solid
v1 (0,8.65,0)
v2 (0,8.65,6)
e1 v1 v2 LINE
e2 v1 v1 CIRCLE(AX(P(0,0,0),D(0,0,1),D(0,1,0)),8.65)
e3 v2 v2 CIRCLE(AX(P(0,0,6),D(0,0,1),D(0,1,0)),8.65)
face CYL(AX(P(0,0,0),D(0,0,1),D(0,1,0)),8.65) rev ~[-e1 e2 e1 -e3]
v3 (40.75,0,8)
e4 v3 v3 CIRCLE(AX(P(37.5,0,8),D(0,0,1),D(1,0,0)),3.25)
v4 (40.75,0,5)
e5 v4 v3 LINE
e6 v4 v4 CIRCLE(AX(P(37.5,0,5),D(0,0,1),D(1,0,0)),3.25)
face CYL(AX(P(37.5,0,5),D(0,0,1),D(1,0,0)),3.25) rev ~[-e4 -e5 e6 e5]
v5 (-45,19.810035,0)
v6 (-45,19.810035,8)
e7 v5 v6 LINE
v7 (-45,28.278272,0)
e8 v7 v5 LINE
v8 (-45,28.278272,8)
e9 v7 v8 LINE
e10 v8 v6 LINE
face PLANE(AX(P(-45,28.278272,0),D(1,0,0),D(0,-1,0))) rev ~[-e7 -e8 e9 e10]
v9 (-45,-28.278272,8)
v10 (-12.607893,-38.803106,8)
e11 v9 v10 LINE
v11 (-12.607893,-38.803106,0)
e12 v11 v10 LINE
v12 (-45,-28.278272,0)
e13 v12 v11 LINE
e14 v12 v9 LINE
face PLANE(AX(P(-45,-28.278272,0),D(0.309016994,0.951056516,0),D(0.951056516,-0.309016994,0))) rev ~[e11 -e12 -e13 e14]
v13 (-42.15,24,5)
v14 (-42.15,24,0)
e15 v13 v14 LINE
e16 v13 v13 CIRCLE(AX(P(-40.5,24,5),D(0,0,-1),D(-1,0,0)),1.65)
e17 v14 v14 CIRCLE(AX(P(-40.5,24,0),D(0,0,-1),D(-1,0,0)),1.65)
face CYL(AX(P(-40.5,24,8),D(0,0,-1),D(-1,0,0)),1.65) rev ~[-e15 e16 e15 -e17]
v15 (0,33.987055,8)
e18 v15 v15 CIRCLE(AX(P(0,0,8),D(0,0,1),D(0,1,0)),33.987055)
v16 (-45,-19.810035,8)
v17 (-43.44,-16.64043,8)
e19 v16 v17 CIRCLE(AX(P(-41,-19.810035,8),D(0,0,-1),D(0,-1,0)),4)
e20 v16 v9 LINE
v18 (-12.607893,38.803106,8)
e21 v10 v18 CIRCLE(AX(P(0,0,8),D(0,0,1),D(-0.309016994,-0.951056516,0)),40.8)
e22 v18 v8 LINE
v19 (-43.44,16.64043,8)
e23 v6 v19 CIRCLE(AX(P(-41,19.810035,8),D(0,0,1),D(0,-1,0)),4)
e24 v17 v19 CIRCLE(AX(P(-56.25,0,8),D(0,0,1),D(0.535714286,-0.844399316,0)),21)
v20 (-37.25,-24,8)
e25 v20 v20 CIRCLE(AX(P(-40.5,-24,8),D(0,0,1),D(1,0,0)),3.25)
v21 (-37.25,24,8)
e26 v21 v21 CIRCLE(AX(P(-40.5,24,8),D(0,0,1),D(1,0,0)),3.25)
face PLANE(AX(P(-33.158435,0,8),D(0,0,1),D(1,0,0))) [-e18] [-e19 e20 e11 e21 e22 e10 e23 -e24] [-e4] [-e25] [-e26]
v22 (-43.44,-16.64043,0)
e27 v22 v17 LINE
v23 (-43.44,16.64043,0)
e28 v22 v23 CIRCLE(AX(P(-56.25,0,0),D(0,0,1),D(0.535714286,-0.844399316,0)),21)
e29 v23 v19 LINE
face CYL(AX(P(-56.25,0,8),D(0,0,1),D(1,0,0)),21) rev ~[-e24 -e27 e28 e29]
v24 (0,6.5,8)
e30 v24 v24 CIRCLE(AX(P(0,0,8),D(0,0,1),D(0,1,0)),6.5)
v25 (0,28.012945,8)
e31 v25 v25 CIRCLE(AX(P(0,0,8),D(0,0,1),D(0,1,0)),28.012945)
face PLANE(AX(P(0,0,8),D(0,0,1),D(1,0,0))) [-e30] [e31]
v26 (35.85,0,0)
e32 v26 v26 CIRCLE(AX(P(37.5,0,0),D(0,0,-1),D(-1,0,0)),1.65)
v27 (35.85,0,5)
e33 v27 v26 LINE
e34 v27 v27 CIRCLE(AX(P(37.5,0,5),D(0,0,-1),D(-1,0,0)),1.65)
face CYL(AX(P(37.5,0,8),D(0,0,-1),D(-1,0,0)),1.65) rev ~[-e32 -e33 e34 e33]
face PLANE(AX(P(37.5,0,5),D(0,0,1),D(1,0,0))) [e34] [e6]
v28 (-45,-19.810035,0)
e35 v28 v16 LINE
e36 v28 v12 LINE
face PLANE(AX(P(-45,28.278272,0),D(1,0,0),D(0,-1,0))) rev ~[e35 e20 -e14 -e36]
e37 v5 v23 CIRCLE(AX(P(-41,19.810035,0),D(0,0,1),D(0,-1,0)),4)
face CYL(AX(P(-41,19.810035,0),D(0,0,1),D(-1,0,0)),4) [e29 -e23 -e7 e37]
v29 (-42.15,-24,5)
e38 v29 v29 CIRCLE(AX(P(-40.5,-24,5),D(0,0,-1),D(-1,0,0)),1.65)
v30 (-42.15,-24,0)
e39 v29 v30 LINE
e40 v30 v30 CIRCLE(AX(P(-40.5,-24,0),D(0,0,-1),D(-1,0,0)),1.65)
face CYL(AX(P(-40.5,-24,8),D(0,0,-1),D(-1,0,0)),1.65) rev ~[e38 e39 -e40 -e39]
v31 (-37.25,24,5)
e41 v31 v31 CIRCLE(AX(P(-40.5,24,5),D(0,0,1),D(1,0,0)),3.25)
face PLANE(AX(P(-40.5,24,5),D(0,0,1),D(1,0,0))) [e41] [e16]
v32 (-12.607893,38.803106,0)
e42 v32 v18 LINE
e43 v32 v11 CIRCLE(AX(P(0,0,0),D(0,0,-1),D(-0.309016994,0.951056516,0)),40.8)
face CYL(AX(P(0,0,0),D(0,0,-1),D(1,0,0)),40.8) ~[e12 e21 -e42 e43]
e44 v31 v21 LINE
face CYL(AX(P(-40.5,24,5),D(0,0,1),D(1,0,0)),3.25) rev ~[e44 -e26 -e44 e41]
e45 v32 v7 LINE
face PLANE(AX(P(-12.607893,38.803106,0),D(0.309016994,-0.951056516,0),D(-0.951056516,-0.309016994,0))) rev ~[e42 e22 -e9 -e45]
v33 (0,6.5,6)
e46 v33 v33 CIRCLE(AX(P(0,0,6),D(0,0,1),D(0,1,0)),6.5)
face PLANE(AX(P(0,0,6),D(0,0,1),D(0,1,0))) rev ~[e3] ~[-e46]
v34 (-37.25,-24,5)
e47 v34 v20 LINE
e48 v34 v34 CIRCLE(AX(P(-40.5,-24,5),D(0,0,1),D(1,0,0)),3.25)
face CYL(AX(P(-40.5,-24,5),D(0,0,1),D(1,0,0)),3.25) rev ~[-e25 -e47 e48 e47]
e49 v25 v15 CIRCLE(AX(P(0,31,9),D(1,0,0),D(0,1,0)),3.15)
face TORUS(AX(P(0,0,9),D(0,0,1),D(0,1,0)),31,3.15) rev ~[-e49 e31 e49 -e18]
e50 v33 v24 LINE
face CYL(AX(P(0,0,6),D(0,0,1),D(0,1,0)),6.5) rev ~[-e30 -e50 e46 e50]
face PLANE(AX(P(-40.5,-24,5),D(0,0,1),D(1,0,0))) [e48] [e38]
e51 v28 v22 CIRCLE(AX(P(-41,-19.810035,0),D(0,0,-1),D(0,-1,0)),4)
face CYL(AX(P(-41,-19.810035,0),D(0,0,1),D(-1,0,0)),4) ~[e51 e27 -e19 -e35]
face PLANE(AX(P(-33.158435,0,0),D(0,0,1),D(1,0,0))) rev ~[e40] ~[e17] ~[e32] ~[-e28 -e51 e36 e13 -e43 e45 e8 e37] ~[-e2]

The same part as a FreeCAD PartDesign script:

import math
import FreeCAD as App
import Part
import Sketcher
Q = App.Units.Quantity


def edges_at(feature, points):
    """Names of the edges that pass closest to the given points."""
    edges = feature.Shape.Edges
    near = lambda p: min(range(len(edges)), key=lambda i: edges[i].distToShape(Part.Vertex(*p))[0])
    return sorted({f"Edge{near(p) + 1}" for p in points})

doc = App.newDocument("Part")
body = doc.addObject("PartDesign::Body", "Body")

sketch1 = body.newObject("Sketcher::SketchObject", "Sketch")
sketch1.AttachmentSupport = (doc.getObject("XY_Plane"), [""])
sketch1.MapMode = "FlatFace"
sketch1.addGeometry(Part.Circle(App.Vector(0, 0, 0), App.Vector(0, 0, 1), 40.8), False)
sketch1.addConstraint([
    Sketcher.Constraint("Coincident", 0, 3, -1, 1),
    Sketcher.Constraint("Diameter", 0, Q("81.6 mm")),
])
pad1 = body.newObject("PartDesign::Pad", "Pad")
pad1.Profile = sketch1
pad1.Length = 8

sketch2 = body.newObject("Sketcher::SketchObject", "Sketch001")
sketch2.AttachmentSupport = (doc.getObject("YZ_Plane"), [""])
sketch2.MapMode = "FlatFace"
sketch2.addGeometry([
    Part.LineSegment(App.Vector(0, 8, 0), App.Vector(0, 0, 0)),
    Part.LineSegment(App.Vector(0, 0, 0), App.Vector(8.65, 0, 0)),
    Part.LineSegment(App.Vector(8.65, 0, 0), App.Vector(8.65, 6, 0)),
    Part.LineSegment(App.Vector(8.65, 6, 0), App.Vector(6.5, 6, 0)),
    Part.LineSegment(App.Vector(6.5, 6, 0), App.Vector(6.5, 8, 0)),
    Part.LineSegment(App.Vector(6.5, 8, 0), App.Vector(0, 8, 0)),
], False)
sketch2.addConstraint([
    Sketcher.Constraint("Coincident", 0, 2, 1, 1),
    Sketcher.Constraint("Coincident", 1, 2, 2, 1),
    Sketcher.Constraint("Coincident", 2, 2, 3, 1),
    Sketcher.Constraint("Coincident", 3, 2, 4, 1),
    Sketcher.Constraint("Coincident", 4, 2, 5, 1),
    Sketcher.Constraint("Coincident", 5, 2, 0, 1),
    Sketcher.Constraint("Vertical", 0),
    Sketcher.Constraint("Horizontal", 1),
    Sketcher.Constraint("Vertical", 2),
    Sketcher.Constraint("Horizontal", 3),
    Sketcher.Constraint("Vertical", 4),
    Sketcher.Constraint("Horizontal", 5),
    Sketcher.Constraint("Coincident", 0, 2, -1, 1),
    Sketcher.Constraint("DistanceY", 0, 2, 0, 1, Q("8 mm")),
    Sketcher.Constraint("DistanceY", 2, 1, 2, 2, Q("6 mm")),
    Sketcher.Constraint("DistanceX", 5, 2, 5, 1, Q("6.5 mm")),
    Sketcher.Constraint("DistanceX", 1, 1, 1, 2, Q("8.65 mm")),
])
groove = body.newObject("PartDesign::Groove", "Groove")
groove.Profile = sketch2
groove.ReferenceAxis = (sketch2, ["V_Axis"])
groove.Angle = 360

sketch3 = body.newObject("Sketcher::SketchObject", "Sketch002")
sketch3.AttachmentSupport = (doc.getObject("YZ_Plane"), [""])
sketch3.MapMode = "FlatFace"
sketch3.addGeometry(Part.Circle(App.Vector(31, 9, 0), App.Vector(0, 0, 1), 3.15), False)
sketch3.addConstraint([
    Sketcher.Constraint("Diameter", 0, Q("6.3 mm")),
    Sketcher.Constraint("DistanceX", -1, 1, 0, 3, Q("31 mm")),
    Sketcher.Constraint("DistanceY", -1, 1, 0, 3, Q("9 mm")),
])
groove2 = body.newObject("PartDesign::Groove", "Groove001")
groove2.Profile = sketch3
groove2.ReferenceAxis = (sketch3, ["V_Axis"])
groove2.Angle = 360

sketch4 = body.newObject("Sketcher::SketchObject", "Sketch003")
sketch4.AttachmentSupport = (doc.getObject("XY_Plane"), [""])
sketch4.MapMode = "FlatFace"
sketch4.addGeometry([
    Part.LineSegment(App.Vector(-45, 28.278272, 0), App.Vector(-45, -28.278272, 0)),
    Part.LineSegment(App.Vector(-45, -28.278272, 0), App.Vector(-12.607893, -38.803106, 0)),
    Part.ArcOfCircle(Part.Circle(App.Vector(0, 0, 0), App.Vector(0, 0, 1), 40.8), math.radians(-151.927513), math.radians(-108)),
    Part.LineSegment(App.Vector(-36, -19.2, 0), App.Vector(-36, 19.2, 0)),
    Part.ArcOfCircle(Part.Circle(App.Vector(0, 0, 0), App.Vector(0, 0, 1), 40.8), math.radians(108), math.radians(151.927513)),
    Part.LineSegment(App.Vector(-12.607893, 38.803106, 0), App.Vector(-45, 28.278272, 0)),
], False)
sketch4.addConstraint([
    Sketcher.Constraint("Coincident", 0, 2, 1, 1),
    Sketcher.Constraint("Tangent", 1, 2, 2, 2),
    Sketcher.Constraint("Coincident", 2, 1, 3, 1),
    Sketcher.Constraint("Coincident", 3, 2, 4, 2),
    Sketcher.Constraint("Tangent", 4, 1, 5, 1),
    Sketcher.Constraint("Coincident", 5, 2, 0, 1),
    Sketcher.Constraint("Vertical", 0),
    Sketcher.Constraint("Vertical", 3),
    Sketcher.Constraint("Coincident", 2, 3, -1, 1),
    Sketcher.Constraint("Coincident", 4, 3, -1, 1),
    Sketcher.Constraint("Equal", 2, 4),
    Sketcher.Constraint("Vertical", 1, 2, 4, 1),
    Sketcher.Constraint("Radius", 2, Q("40.8 mm")),
    Sketcher.Constraint("Angle", 1, Q("-18 deg")),
    Sketcher.Constraint("DistanceY", 3, 1, 3, 2, Q("38.4 mm")),
    Sketcher.Constraint("DistanceX", 0, 2, -1, 1, Q("45 mm")),
])
pad2 = body.newObject("PartDesign::Pad", "Pad001")
pad2.Profile = sketch4
pad2.Type = "UpToLast"

sketch5 = body.newObject("Sketcher::SketchObject", "Sketch004")
sketch5.AttachmentSupport = (doc.getObject("XY_Plane"), [""])
sketch5.MapMode = "FlatFace"
sketch5.AttachmentOffset = App.Placement(App.Vector(0, 0, 8), App.Rotation())
sketch5.addGeometry(Part.Circle(App.Vector(-56.25, 0, 0), App.Vector(0, 0, 1), 21), False)
sketch5.addConstraint([
    Sketcher.Constraint("PointOnObject", 0, 3, -1),
    Sketcher.Constraint("Diameter", 0, Q("42 mm")),
    Sketcher.Constraint("DistanceX", 0, 3, -1, 1, Q("56.25 mm")),
])
pocket1 = body.newObject("PartDesign::Pocket", "Pocket")
pocket1.Profile = sketch5
pocket1.Type = "ThroughAll"
doc.recompute()

fillet = body.newObject("PartDesign::Fillet", "Fillet")
fillet.Base = (pocket1, edges_at(pocket1, [(-45, 17.732, 4), (-45, -17.732, 4)]))
fillet.Radius = 4

sketch6 = body.newObject("Sketcher::SketchObject", "Sketch005")
sketch6.AttachmentSupport = (doc.getObject("XY_Plane"), [""])
sketch6.MapMode = "FlatFace"
sketch6.AttachmentOffset = App.Placement(App.Vector(0, 0, 8), App.Rotation())
sketch6.addGeometry([
    Part.Circle(App.Vector(-40.5, 24, 0), App.Vector(0, 0, 1), 1.65),
    Part.Circle(App.Vector(-40.5, -24, 0), App.Vector(0, 0, 1), 1.65),
    Part.Circle(App.Vector(37.5, 0, 0), App.Vector(0, 0, 1), 1.65),
], False)
sketch6.addConstraint([
    Sketcher.Constraint("Equal", 0, 1),
    Sketcher.Constraint("Equal", 1, 2),
    Sketcher.Constraint("Symmetric", 0, 3, 1, 3, -1),
    Sketcher.Constraint("PointOnObject", 2, 3, -1),
    Sketcher.Constraint("Diameter", 0, Q("3.3 mm")),
    Sketcher.Constraint("DistanceY", -1, 1, 0, 3, Q("24 mm")),
    Sketcher.Constraint("DistanceX", 0, 3, 2, 3, Q("78 mm")),
    Sketcher.Constraint("DistanceX", 0, 3, -1, 1, Q("40.5 mm")),
])
doc.recompute()
hole = body.newObject("PartDesign::Hole", "Hole")
hole.Profile = sketch6
hole.ThreadType = "None"
hole.Diameter = 3.3
hole.DepthType = "ThroughAll"
hole.HoleCutType = "Counterbore"
hole.HoleCutDiameter = 6.5
hole.HoleCutDepth = 3

doc.recompute()
